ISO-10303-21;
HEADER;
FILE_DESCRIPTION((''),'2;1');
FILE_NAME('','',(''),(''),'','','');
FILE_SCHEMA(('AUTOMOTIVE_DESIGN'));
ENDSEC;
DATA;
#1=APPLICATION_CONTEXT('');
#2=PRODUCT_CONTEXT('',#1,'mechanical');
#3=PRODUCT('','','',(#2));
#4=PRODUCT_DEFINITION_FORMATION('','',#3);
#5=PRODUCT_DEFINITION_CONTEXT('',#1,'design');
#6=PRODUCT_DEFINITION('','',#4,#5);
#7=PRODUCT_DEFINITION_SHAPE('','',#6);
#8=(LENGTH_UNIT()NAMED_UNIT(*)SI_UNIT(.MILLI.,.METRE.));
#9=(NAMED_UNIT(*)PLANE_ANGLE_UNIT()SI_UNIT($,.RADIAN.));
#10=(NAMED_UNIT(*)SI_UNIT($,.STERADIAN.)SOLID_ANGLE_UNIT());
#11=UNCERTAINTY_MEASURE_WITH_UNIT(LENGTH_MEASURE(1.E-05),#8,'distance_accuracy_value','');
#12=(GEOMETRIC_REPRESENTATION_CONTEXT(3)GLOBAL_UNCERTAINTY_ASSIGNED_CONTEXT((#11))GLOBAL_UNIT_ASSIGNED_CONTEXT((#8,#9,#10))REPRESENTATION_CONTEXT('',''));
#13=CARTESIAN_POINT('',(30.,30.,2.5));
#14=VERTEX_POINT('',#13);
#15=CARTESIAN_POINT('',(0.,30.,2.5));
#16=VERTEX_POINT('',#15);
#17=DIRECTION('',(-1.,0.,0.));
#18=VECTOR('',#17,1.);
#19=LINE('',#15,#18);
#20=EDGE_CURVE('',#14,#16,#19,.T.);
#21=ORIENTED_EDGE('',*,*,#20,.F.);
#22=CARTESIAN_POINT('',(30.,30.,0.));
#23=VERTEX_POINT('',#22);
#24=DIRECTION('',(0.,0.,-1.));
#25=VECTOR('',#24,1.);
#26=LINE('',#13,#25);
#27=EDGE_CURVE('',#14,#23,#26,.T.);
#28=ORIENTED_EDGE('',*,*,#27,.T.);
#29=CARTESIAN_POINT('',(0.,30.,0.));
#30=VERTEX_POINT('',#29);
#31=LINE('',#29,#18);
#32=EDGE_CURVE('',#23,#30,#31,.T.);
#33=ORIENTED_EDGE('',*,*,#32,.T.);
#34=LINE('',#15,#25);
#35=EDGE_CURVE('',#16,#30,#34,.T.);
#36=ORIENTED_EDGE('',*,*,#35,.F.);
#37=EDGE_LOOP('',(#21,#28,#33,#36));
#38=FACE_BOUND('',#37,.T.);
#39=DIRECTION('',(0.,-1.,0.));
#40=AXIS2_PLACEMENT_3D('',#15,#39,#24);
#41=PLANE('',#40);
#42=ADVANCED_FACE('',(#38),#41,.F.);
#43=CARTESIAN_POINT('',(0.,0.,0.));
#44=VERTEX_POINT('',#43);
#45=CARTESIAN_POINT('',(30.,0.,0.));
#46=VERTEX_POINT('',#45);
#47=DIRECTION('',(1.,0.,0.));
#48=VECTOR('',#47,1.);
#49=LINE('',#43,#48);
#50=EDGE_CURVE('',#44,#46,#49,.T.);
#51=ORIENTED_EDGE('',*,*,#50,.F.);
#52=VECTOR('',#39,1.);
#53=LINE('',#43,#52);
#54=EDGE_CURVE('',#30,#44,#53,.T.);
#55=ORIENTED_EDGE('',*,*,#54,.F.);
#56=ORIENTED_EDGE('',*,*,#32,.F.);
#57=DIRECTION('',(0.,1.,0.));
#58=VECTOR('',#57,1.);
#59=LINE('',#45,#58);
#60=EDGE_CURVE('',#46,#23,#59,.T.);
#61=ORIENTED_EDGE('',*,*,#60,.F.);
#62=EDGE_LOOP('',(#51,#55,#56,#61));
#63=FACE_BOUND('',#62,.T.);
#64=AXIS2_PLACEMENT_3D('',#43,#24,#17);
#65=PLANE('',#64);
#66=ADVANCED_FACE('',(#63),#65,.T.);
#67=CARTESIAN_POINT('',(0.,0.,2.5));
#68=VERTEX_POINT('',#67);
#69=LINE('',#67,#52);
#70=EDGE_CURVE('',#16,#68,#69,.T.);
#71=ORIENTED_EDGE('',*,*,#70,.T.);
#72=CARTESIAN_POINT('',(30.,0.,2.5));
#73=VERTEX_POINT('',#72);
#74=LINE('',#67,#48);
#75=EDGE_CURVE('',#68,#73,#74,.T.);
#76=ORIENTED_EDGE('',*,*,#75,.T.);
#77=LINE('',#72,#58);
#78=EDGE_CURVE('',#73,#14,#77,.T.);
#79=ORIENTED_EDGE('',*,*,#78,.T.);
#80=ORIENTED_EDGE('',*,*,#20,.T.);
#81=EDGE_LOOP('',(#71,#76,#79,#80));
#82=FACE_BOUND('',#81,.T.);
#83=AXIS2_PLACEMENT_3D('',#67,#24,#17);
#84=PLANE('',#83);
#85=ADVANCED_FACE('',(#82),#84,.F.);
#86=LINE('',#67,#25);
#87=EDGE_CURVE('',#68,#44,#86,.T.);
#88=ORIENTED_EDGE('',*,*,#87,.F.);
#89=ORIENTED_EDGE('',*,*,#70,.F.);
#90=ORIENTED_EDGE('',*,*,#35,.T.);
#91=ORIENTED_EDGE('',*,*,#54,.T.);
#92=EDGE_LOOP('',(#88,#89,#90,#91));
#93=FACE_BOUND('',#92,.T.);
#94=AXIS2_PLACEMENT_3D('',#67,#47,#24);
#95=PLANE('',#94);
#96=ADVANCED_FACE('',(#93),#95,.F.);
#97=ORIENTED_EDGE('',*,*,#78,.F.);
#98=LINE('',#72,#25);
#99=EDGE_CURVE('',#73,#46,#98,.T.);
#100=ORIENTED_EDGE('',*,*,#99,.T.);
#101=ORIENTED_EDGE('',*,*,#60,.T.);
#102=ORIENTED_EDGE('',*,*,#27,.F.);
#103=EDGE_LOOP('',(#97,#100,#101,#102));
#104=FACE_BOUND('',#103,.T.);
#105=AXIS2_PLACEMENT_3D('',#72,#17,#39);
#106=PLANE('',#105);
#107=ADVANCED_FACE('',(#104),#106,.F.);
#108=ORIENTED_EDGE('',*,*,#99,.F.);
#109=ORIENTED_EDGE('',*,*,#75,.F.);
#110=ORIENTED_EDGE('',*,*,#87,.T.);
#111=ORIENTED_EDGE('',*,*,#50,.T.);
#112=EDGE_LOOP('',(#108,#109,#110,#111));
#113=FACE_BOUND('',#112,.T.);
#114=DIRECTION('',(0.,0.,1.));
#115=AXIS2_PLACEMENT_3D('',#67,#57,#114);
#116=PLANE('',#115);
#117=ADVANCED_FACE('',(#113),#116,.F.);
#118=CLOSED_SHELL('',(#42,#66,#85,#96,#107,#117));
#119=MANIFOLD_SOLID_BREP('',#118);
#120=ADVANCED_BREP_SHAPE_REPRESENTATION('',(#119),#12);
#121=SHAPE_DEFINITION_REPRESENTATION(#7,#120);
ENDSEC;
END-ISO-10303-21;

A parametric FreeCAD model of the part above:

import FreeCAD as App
import Part
import Sketcher

V = App.Vector


def add_polygon(sketch, points):
    """Adds a closed chain of lines whose ends are joined by coincident constraints."""
    first, n = sketch.GeometryCount, len(points)
    for a, b in zip(points, points[1:] + points[:1]):
        sketch.addGeometry(Part.LineSegment(App.Vector(*a, 0), App.Vector(*b, 0)), False)
    for i in range(n):
        sketch.addConstraint(Sketcher.Constraint("Coincident", first + i, 2, first + (i + 1) % n, 1))

doc = App.newDocument("Part")
params = doc.addObject("Spreadsheet::Sheet", "Params")
for row, (alias, value) in enumerate([
    ("sketch1_width", "30 mm"),
    ("pad1_length", "2.5 mm"),
], start=1):
    params.set(f"A{row}", alias)
    params.set(f"B{row}", "=" + value)
    params.setAlias(f"B{row}", alias)

body = doc.addObject("PartDesign::Body", "Body")

# Sketch on XY plane
sketch1 = body.newObject("Sketcher::SketchObject", "Sketch")
sketch1.AttachmentSupport = (doc.getObject("XY_Plane"), [""])
sketch1.MapMode = "FlatFace"
add_polygon(sketch1, [(0, 30), (0, 0), (30, 0), (30, 30)])  # lines 0-3
sketch1.addConstraint(Sketcher.Constraint("Vertical", 0))
sketch1.addConstraint(Sketcher.Constraint("Horizontal", 1))
sketch1.addConstraint(Sketcher.Constraint("Vertical", 2))
sketch1.addConstraint(Sketcher.Constraint("Horizontal", 3))
sketch1.addConstraint(Sketcher.Constraint("Coincident", 0, 2, -1, 1))
sketch1.addConstraint(Sketcher.Constraint("Equal", 3, 0))
sketch1.addConstraint(Sketcher.Constraint("DistanceX", 1, 1, 1, 2, 30.0))
sketch1.setExpression("Constraints[10]", "Params.sketch1_width")
pad1 = body.newObject("PartDesign::Pad", "Pad")
pad1.Profile = sketch1
pad1.setExpression("Length", "Params.pad1_length")

doc.recompute()
